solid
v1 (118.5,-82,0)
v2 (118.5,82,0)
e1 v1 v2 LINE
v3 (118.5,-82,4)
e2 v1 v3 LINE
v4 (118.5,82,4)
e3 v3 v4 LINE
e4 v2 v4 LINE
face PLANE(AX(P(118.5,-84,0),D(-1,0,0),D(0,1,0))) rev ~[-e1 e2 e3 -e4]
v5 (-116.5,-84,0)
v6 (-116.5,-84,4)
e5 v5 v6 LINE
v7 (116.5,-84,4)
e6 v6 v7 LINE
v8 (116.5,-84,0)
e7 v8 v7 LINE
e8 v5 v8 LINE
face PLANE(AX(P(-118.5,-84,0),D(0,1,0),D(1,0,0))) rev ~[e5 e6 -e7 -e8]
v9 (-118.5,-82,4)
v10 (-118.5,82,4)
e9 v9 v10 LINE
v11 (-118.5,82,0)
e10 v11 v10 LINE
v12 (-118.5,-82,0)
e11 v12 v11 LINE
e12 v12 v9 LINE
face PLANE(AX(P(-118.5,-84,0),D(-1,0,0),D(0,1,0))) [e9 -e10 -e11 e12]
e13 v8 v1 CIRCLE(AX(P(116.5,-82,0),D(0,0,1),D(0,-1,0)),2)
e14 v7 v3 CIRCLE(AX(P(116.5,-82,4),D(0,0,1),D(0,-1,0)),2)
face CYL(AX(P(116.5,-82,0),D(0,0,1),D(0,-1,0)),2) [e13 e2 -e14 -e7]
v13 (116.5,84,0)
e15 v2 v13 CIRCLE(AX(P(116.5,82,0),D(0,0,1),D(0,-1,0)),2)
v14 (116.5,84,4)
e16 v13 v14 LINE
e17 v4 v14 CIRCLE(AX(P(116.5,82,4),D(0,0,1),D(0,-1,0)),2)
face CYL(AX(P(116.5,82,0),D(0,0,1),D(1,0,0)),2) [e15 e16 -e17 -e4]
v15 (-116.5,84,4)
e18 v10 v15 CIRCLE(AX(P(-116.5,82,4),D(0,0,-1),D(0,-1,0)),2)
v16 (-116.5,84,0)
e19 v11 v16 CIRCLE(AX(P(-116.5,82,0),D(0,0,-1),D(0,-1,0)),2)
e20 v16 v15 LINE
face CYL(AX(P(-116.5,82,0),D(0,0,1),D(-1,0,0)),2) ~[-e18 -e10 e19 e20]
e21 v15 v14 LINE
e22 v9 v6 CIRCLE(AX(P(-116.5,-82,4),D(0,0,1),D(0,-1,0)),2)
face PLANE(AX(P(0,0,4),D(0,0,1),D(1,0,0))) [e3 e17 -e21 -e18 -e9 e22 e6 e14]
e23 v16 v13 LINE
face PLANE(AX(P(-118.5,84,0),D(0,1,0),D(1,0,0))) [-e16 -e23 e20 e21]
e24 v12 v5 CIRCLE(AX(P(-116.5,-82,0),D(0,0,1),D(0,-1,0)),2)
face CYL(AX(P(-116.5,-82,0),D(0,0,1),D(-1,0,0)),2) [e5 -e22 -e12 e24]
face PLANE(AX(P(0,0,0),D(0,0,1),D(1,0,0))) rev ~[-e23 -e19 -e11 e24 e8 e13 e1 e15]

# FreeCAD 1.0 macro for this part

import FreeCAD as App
import Part
import Sketcher

V = App.Vector
Q = App.Units.Quantity


def edges_at(feature, points):
    """Names of the edges that pass closest to the given points."""
    edges = feature.Shape.Edges
    near = lambda p: min(range(len(edges)), key=lambda i: edges[i].distToShape(Part.Vertex(*p))[0])
    return sorted({f"Edge{near(p) + 1}" for p in points})


def add_polygon(sketch, points):
    """Adds a closed chain of lines whose ends are joined by coincident constraints."""
    first, n = sketch.GeometryCount, len(points)
    for a, b in zip(points, points[1:] + points[:1]):
        sketch.addGeometry(Part.LineSegment(App.Vector(*a, 0), App.Vector(*b, 0)), False)
    for i in range(n):
        sketch.addConstraint(Sketcher.Constraint("Coincident", first + i, 2, first + (i + 1) % n, 1))

doc = App.newDocument("Part")
body = doc.addObject("PartDesign::Body", "Body")

sketch1 = doc.addObject("Sketcher::SketchObject", "Sketch")
body.addObject(sketch1)
sketch1.AttachmentSupport = (doc.XY_Plane, [""])
sketch1.MapMode = "FlatFace"
add_polygon(sketch1, [(-118.5, 84), (-118.5, -84), (118.5, -84), (118.5, 84)])
sketch1.addConstraint([
    Sketcher.Constraint("Vertical", 0),
    Sketcher.Constraint("Horizontal", 1),
    Sketcher.Constraint("Vertical", 2),
    Sketcher.Constraint("Horizontal", 3),
    Sketcher.Constraint("Symmetric", 0, 2, 2, 2, -1, 1),
    Sketcher.Constraint("DistanceX", 1, 1, 1, 2, Q("237 mm")),
    Sketcher.Constraint("DistanceY", 0, 2, 0, 1, Q("168 mm")),
])
pad1 = doc.addObject("PartDesign::Pad", "Pad")
body.addObject(pad1)
pad1.Profile = sketch1
pad1.Length = 4
doc.recompute()

fillet = doc.addObject("PartDesign::Fillet", "Fillet")
body.addObject(fillet)
fillet.Base = (pad1, edges_at(pad1, [
    (-118.5, -84, 2),
    (118.5, -84, 2),
    (118.5, 84, 2),
    (-118.5, 84, 2),
]))
fillet.Radius = 2

doc.recompute()
